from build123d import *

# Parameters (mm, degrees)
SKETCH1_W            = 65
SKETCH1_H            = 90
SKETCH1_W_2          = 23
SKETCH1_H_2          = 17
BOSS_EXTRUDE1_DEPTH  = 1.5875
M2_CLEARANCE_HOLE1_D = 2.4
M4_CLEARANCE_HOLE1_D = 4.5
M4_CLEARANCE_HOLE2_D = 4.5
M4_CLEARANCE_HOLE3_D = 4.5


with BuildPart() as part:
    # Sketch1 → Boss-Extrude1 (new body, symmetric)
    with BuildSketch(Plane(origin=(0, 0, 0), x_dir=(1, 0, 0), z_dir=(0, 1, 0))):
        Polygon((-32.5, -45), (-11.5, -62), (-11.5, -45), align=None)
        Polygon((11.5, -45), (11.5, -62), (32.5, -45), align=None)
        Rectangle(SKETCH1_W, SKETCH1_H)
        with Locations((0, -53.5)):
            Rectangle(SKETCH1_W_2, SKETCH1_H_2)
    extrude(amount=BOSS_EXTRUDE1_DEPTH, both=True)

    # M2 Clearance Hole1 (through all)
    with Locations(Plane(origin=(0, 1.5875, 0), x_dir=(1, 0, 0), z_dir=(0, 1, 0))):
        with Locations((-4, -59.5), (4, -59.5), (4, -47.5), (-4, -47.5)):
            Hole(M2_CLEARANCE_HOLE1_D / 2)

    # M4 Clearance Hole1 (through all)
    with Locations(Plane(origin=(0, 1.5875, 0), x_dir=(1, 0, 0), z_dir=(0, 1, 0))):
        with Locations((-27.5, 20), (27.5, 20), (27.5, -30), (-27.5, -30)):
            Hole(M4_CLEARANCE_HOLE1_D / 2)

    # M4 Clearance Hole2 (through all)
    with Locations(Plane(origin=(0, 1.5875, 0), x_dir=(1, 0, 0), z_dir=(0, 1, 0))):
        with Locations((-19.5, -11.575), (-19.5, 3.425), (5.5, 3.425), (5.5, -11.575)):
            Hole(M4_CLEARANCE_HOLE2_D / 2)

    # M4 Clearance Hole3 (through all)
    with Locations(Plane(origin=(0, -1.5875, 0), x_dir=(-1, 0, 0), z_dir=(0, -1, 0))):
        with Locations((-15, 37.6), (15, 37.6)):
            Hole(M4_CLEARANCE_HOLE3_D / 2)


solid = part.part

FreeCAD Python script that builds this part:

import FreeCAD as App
import Part
import Sketcher

V = App.Vector
Q = App.Units.Quantity

doc = App.newDocument("Part")
body = doc.addObject("PartDesign::Body", "Body")

sketch1 = body.newObject("Sketcher::SketchObject", "Sketch")
sketch1.AttachmentSupport = (doc.getObject("XZ_Plane"), [""])
sketch1.MapMode = "FlatFace"
sketch1.addGeometry([
    Part.LineSegment(V(-32, 45, 0), V(-12, 62, 0)),
    Part.LineSegment(V(-12, 62, 0), V(12, 62, 0)),
    Part.LineSegment(V(12, 62, 0), V(32, 45, 0)),
    Part.LineSegment(V(32, 45, 0), V(32, -45, 0)),
    Part.LineSegment(V(32, -45, 0), V(-32, -45, 0)),
    Part.LineSegment(V(-32, -45, 0), V(-32, 45, 0)),
], False)
sketch1.addConstraint([
    Sketcher.Constraint("Coincident", 0, 2, 1, 1),
    Sketcher.Constraint("Coincident", 1, 2, 2, 1),
    Sketcher.Constraint("Coincident", 2, 2, 3, 1),
    Sketcher.Constraint("Coincident", 3, 2, 4, 1),
    Sketcher.Constraint("Coincident", 4, 2, 5, 1),
    Sketcher.Constraint("Coincident", 5, 2, 0, 1),
    Sketcher.Constraint("Horizontal", 1),
    Sketcher.Constraint("Vertical", 3),
    Sketcher.Constraint("Horizontal", 4),
    Sketcher.Constraint("Vertical", 5),
    Sketcher.Constraint("Symmetric", 2, 2, 4, 2, -1, 1),
    Sketcher.Constraint("Horizontal", 2, 2, 5, 2),
    Sketcher.Constraint("Equal", 0, 2),
    Sketcher.Constraint("DistanceX", 1, 1, 1, 2, Q("23 mm")),
    Sketcher.Constraint("DistanceX", 4, 2, 4, 1, Q("65 mm")),
    Sketcher.Constraint("DistanceY", 3, 2, 3, 1, Q("90 mm")),
    Sketcher.Constraint("DistanceY", -1, 1, 0, 2, Q("62 mm")),
])
pad1 = body.newObject("PartDesign::Pad", "Pad")
pad1.Profile = sketch1
pad1.Length = 3.175
pad1.Midplane = True

sketch2 = body.newObject("Sketcher::SketchObject", "Sketch001")
sketch2.AttachmentSupport = (doc.getObject("XZ_Plane"), [""])
sketch2.MapMode = "FlatFace"
sketch2.AttachmentOffset = App.Placement(V(0, 0, -1.5875), App.Rotation())
sketch2.addGeometry([
    Part.Circle(V(-4, 59.5, 0), V(0, 0, 1), 1.2),
    Part.Circle(V(4, 59.5, 0), V(0, 0, 1), 1.2),
    Part.Circle(V(4, 47.5, 0), V(0, 0, 1), 1.2),
    Part.Circle(V(-4, 47.5, 0), V(0, 0, 1), 1.2),
], False)
sketch2.addConstraint([
    Sketcher.Constraint("Equal", 0, 1),
    Sketcher.Constraint("Equal", 1, 2),
    Sketcher.Constraint("Equal", 2, 3),
    Sketcher.Constraint("Symmetric", 0, 3, 1, 3, -2),
    Sketcher.Constraint("Symmetric", 2, 3, 3, 3, -2),
    Sketcher.Constraint("Vertical", 1, 3, 2, 3),
    Sketcher.Constraint("Diameter", 0, Q("2.4 mm")),
    Sketcher.Constraint("DistanceX", 0, 3, -1, 1, Q("4 mm")),
    Sketcher.Constraint("DistanceY", 2, 3, 1, 3, Q("12 mm")),
    Sketcher.Constraint("DistanceY", -1, 1, 0, 3, Q("59.5 mm")),
])
doc.recompute()
hole = body.newObject("PartDesign::Hole", "Hole")
hole.Profile = sketch2
hole.ThreadType = "None"
hole.Diameter = 2.4
hole.DepthType = "ThroughAll"
hole.Reversed = True

sketch3 = body.newObject("Sketcher::SketchObject", "Sketch002")
sketch3.AttachmentSupport = (doc.getObject("XZ_Plane"), [""])
sketch3.MapMode = "FlatFace"
sketch3.AttachmentOffset = App.Placement(V(0, 0, -1.5875), App.Rotation())
sketch3.addGeometry([
    Part.Circle(V(-27.5, -20, 0), V(0, 0, 1), 2.2),
    Part.Circle(V(27.5, -20, 0), V(0, 0, 1), 2.2),
    Part.Circle(V(27.5, 30, 0), V(0, 0, 1), 2.2),
    Part.Circle(V(-27.5, 30, 0), V(0, 0, 1), 2.2),
], False)
sketch3.addConstraint([
    Sketcher.Constraint("Equal", 0, 1),
    Sketcher.Constraint("Equal", 1, 2),
    Sketcher.Constraint("Equal", 2, 3),
    Sketcher.Constraint("Symmetric", 0, 3, 1, 3, -2),
    Sketcher.Constraint("Symmetric", 2, 3, 3, 3, -2),
    Sketcher.Constraint("Vertical", 1, 3, 2, 3),
    Sketcher.Constraint("Diameter", 0, Q("4.5 mm")),
    Sketcher.Constraint("DistanceY", 0, 3, -1, 1, Q("20 mm")),
    Sketcher.Constraint("DistanceY", -1, 1, 2, 3, Q("30 mm")),
    Sketcher.Constraint("DistanceX", 0, 3, 1, 3, Q("55 mm")),
])
doc.recompute()
hole2 = body.newObject("PartDesign::Hole", "Hole001")
hole2.Profile = sketch3
hole2.ThreadType = "None"
hole2.Diameter = 4.5
hole2.DepthType = "ThroughAll"
hole2.Reversed = True

sketch4 = body.newObject("Sketcher::SketchObject", "Sketch003")
sketch4.AttachmentSupport = (doc.getObject("XZ_Plane"), [""])
sketch4.MapMode = "FlatFace"
sketch4.AttachmentOffset = App.Placement(V(0, 0, -1.5875), App.Rotation())
sketch4.addGeometry([
    Part.Circle(V(-19.5, 11.6, 0), V(0, 0, 1), 2.2),
    Part.Circle(V(-19.5, -3.4, 0), V(0, 0, 1), 2.2),
    Part.Circle(V(5.5, -3.4, 0), V(0, 0, 1), 2.2),
    Part.Circle(V(5.5, 11.6, 0), V(0, 0, 1), 2.2),
], False)
sketch4.addConstraint([
    Sketcher.Constraint("Equal", 0, 1),
    Sketcher.Constraint("Equal", 1, 2),
    Sketcher.Constraint("Equal", 2, 3),
    Sketcher.Constraint("Horizontal", 1, 3, 2, 3),
    Sketcher.Constraint("Horizontal", 0, 3, 3, 3),
    Sketcher.Constraint("Vertical", 0, 3, 1, 3),
    Sketcher.Constraint("Vertical", 2, 3, 3, 3),
    Sketcher.Constraint("Diameter", 0, Q("4.5 mm")),
    Sketcher.Constraint("DistanceY", 1, 3, 0, 3, Q("15 mm")),
    Sketcher.Constraint("DistanceX", 1, 3, 2, 3, Q("25 mm")),
    Sketcher.Constraint("DistanceX", 0, 3, -1, 1, Q("19.5 mm")),
    Sketcher.Constraint("DistanceY", -1, 1, 0, 3, Q("11.575 mm")),
])
doc.recompute()
hole3 = body.newObject("PartDesign::Hole", "Hole002")
hole3.Profile = sketch4
hole3.ThreadType = "None"
hole3.Diameter = 4.5
hole3.DepthType = "ThroughAll"
hole3.Reversed = True

sketch5 = body.newObject("Sketcher::SketchObject", "Sketch004")
sketch5.AttachmentSupport = (doc.getObject("XZ_Plane"), [""])
sketch5.MapMode = "FlatFace"
sketch5.AttachmentOffset = App.Placement(V(0, 0, 1.5875), App.Rotation())
sketch5.addGeometry([
    Part.Circle(V(15, -37.6, 0), V(0, 0, 1), 2.2),
    Part.Circle(V(-15, -37.6, 0), V(0, 0, 1), 2.2),
], False)
sketch5.addConstraint([
    Sketcher.Constraint("Equal", 0, 1),
    Sketcher.Constraint("Symmetric", 0, 3, 1, 3, -2),
    Sketcher.Constraint("Diameter", 0, Q("4.5 mm")),
    Sketcher.Constraint("DistanceX", -1, 1, 0, 3, Q("15 mm")),
    Sketcher.Constraint("DistanceY", 0, 3, -1, 1, Q("37.6 mm")),
])
doc.recompute()
hole4 = body.newObject("PartDesign::Hole", "Hole003")
hole4.Profile = sketch5
hole4.ThreadType = "None"
hole4.Diameter = 4.5
hole4.DepthType = "ThroughAll"

doc.recompute()
